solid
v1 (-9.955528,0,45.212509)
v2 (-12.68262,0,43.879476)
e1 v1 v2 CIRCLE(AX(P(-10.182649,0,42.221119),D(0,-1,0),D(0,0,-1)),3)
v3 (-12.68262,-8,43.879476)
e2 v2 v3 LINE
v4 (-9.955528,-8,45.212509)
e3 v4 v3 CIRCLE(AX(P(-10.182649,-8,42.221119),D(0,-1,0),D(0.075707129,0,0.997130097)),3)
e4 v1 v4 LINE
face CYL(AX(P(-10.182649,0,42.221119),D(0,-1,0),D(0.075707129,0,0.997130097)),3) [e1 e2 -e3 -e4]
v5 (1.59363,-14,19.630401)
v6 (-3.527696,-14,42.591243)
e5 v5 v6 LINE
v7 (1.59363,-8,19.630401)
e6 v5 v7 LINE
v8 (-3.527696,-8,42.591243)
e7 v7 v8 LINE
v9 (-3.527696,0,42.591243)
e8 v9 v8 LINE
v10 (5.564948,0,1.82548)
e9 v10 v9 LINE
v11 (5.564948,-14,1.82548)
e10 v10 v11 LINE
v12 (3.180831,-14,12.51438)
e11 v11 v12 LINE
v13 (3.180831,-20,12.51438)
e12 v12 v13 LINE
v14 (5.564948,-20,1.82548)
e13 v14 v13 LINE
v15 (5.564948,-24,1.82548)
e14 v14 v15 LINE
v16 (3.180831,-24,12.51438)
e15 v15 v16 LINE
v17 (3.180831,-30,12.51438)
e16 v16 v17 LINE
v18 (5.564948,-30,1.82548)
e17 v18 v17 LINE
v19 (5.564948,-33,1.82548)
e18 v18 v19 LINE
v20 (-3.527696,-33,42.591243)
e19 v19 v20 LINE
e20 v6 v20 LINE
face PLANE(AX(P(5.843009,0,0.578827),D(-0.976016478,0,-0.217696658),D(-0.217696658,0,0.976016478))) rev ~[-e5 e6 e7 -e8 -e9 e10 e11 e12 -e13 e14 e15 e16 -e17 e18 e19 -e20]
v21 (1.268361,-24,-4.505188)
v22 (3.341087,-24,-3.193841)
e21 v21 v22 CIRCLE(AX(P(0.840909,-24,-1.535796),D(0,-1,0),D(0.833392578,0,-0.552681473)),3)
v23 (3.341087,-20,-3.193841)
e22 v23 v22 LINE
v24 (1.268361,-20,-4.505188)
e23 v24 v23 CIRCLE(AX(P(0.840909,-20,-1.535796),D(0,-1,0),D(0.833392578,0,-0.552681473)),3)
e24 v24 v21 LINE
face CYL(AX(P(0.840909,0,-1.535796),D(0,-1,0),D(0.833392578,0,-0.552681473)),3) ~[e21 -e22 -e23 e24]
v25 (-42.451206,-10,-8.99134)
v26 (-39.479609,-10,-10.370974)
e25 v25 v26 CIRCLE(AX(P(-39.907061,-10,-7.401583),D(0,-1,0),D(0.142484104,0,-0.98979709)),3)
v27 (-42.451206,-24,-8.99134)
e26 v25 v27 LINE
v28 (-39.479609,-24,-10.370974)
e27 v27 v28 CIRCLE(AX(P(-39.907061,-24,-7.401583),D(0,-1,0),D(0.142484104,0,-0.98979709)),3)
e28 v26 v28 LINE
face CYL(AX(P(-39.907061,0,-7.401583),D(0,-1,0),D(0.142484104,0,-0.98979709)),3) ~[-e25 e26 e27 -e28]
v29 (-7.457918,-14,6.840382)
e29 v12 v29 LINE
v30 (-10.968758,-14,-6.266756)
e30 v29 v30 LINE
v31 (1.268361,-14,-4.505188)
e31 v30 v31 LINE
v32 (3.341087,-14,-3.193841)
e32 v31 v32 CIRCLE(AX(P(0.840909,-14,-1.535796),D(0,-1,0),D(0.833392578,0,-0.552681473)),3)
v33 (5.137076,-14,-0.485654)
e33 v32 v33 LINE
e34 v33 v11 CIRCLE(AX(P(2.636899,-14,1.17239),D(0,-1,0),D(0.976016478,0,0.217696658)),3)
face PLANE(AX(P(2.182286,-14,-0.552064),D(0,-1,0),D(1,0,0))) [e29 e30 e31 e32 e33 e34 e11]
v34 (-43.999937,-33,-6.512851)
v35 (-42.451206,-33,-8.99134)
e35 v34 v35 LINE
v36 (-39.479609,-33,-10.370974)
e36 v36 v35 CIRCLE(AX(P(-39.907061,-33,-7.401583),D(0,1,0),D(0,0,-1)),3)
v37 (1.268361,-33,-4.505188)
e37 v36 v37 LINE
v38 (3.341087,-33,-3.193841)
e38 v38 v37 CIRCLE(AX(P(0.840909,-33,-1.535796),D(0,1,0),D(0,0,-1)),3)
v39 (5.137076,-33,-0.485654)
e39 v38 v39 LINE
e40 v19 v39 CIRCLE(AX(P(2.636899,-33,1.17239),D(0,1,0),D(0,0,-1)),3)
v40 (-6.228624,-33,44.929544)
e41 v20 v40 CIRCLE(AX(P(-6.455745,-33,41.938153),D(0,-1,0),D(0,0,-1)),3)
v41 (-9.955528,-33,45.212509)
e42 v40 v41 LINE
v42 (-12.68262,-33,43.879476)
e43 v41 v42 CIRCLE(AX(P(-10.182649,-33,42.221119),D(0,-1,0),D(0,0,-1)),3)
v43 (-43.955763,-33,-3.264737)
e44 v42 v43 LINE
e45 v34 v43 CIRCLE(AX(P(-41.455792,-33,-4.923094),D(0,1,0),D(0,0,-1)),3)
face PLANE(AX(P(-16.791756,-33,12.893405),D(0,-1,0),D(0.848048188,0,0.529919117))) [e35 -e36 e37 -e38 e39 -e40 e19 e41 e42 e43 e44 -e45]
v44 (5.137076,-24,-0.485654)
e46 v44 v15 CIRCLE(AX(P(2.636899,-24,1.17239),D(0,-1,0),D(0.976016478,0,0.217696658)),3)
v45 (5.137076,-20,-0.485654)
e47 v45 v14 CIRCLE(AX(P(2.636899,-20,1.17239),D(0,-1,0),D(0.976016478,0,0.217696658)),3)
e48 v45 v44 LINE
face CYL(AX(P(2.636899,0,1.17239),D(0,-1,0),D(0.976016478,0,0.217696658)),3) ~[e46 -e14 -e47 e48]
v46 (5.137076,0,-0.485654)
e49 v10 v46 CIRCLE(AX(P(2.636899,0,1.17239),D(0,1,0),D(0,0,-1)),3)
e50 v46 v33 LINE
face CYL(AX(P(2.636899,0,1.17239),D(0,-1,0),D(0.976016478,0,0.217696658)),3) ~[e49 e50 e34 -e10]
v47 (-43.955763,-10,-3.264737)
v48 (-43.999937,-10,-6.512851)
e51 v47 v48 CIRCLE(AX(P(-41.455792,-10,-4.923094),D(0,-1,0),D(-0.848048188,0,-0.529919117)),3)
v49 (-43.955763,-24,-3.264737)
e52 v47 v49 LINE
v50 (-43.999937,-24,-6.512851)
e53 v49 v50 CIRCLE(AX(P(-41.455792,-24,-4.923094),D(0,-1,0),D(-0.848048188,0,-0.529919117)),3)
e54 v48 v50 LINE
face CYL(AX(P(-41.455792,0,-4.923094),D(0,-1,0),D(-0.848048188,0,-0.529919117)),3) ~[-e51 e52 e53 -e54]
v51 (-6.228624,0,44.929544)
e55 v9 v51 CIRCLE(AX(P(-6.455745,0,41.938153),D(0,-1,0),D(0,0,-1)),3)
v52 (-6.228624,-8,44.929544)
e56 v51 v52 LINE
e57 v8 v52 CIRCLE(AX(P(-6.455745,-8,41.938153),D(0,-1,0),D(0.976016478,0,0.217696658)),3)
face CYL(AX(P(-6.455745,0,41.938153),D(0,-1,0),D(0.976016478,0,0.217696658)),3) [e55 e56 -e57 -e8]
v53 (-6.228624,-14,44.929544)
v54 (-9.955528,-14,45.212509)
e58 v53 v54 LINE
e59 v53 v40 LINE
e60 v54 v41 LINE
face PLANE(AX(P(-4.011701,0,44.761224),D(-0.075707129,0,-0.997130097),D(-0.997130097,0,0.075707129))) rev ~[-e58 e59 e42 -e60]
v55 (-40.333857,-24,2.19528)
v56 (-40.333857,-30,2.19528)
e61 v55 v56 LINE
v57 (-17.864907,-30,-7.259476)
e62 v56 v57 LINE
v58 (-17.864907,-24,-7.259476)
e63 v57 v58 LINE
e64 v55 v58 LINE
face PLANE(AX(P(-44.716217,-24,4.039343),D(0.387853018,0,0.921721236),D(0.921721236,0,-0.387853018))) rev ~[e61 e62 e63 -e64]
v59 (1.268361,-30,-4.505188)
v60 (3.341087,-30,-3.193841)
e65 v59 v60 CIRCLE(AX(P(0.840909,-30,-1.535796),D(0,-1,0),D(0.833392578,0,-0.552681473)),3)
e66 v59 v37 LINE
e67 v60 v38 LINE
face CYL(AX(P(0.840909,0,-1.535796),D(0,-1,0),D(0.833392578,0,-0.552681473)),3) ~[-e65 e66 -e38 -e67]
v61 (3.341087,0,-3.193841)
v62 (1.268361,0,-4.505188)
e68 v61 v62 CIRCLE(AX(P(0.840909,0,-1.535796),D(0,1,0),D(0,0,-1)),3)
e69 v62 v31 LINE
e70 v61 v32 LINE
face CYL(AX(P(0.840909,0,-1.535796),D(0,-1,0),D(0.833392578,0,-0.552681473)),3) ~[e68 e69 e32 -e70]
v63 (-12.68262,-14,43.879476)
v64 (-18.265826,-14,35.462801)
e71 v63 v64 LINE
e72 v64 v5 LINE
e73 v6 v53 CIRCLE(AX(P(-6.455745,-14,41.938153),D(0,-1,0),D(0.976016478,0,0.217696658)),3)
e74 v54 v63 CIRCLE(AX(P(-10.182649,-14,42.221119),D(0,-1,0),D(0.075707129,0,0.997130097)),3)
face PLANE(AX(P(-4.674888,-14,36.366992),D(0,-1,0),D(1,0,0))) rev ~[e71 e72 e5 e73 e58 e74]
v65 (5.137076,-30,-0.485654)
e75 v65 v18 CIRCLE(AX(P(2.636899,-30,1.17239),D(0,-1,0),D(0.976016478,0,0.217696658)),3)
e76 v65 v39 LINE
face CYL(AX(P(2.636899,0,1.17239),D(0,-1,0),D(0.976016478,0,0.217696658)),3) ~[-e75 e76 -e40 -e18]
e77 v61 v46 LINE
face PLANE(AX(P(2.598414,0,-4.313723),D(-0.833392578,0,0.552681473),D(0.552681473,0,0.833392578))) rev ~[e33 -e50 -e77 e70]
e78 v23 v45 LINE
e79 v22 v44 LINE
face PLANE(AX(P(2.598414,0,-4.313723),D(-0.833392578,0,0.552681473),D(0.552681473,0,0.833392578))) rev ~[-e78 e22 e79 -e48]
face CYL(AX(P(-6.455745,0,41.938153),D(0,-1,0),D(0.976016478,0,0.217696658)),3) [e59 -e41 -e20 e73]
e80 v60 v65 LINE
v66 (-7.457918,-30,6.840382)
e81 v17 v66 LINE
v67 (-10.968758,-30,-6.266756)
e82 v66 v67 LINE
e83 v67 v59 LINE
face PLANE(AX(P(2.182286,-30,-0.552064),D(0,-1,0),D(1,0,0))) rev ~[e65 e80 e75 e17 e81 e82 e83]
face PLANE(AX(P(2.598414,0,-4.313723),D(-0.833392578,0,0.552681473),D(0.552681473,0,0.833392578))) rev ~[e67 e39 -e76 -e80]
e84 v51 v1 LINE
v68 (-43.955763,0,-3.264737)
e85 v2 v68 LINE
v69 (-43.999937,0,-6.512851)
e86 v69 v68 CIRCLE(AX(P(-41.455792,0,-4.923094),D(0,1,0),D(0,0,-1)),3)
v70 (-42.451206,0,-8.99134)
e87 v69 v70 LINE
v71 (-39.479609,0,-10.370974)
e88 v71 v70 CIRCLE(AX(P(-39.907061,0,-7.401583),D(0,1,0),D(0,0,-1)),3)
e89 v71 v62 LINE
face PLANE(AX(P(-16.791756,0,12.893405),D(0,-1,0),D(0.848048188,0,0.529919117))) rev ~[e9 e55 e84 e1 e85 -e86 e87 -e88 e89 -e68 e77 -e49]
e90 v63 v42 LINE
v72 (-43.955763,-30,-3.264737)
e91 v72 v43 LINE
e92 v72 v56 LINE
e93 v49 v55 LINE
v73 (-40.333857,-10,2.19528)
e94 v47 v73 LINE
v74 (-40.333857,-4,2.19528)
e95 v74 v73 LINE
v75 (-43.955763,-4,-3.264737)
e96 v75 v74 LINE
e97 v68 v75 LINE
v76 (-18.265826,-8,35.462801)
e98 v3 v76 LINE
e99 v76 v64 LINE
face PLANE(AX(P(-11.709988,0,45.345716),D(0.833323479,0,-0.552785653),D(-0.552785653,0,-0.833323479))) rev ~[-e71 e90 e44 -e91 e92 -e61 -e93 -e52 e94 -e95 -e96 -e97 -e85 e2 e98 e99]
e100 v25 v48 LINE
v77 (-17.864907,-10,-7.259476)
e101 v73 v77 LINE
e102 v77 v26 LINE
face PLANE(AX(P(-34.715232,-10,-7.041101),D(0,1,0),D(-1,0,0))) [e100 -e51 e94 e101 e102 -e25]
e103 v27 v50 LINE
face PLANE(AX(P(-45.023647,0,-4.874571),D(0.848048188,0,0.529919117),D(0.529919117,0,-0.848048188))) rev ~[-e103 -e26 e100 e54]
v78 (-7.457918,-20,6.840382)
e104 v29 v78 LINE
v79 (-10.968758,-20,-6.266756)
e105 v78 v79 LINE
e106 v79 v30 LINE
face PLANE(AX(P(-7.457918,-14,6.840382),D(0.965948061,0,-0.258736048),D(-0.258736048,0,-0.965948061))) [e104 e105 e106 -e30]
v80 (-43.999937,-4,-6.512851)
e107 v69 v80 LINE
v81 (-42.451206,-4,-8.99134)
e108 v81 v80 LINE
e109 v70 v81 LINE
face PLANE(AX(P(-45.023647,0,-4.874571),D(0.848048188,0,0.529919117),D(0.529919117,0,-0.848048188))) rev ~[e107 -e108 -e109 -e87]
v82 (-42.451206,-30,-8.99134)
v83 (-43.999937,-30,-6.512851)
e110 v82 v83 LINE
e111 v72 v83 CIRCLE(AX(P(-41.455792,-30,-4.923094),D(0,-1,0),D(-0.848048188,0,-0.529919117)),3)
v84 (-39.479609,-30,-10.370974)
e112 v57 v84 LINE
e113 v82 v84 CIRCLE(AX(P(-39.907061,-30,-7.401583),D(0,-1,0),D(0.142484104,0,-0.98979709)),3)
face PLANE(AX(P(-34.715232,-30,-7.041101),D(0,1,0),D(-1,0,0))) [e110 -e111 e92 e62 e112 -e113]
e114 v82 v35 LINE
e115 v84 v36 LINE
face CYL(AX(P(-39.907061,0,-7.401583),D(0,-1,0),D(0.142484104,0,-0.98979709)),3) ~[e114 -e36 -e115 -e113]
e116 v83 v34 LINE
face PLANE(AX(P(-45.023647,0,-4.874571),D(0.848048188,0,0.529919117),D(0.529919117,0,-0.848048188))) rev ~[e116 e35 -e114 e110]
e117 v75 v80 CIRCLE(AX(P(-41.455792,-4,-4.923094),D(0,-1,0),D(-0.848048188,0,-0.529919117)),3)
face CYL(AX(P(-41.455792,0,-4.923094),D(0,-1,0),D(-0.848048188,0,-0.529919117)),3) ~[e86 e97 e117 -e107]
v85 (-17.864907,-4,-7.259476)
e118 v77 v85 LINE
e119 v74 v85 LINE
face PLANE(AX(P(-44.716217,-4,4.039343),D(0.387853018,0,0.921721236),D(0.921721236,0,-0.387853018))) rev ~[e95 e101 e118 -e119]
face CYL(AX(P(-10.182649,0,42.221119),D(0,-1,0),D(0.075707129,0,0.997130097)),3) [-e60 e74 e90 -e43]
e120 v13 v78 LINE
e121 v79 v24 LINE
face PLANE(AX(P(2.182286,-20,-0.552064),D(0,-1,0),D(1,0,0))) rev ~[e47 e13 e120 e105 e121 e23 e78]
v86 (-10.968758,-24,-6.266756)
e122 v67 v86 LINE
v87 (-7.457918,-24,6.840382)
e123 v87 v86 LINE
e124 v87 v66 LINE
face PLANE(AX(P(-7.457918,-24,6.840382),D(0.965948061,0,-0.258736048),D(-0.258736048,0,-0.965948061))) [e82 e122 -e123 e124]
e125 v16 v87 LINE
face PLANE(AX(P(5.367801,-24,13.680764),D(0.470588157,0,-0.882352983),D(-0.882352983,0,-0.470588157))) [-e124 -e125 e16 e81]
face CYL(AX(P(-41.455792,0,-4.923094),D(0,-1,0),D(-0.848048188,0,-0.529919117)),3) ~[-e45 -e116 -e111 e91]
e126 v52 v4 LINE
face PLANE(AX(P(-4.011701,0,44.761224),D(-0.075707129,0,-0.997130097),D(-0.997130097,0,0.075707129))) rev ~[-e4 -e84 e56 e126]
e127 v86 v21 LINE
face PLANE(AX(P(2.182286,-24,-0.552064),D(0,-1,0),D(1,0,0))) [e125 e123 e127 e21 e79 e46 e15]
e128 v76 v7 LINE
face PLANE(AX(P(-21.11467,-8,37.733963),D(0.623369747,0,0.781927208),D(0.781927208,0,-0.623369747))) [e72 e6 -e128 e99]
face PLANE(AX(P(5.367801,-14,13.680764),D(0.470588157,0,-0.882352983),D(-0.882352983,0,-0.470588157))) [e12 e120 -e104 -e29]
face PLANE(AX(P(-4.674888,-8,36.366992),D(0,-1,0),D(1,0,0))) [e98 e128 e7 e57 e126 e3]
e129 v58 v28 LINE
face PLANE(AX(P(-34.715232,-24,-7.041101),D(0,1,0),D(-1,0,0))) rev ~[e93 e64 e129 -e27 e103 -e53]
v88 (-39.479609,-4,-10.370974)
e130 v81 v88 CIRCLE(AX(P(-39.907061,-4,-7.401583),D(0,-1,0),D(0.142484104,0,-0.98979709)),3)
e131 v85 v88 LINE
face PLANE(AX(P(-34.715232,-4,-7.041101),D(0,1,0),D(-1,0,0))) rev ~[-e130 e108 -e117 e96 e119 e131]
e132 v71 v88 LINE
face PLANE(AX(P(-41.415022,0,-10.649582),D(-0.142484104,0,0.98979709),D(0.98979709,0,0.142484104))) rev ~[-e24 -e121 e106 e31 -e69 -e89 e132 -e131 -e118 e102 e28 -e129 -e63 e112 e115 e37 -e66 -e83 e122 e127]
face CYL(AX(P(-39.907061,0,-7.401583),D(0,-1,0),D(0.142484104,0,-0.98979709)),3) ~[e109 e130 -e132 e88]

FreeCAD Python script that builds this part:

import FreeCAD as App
import Part
import Sketcher

V = App.Vector
Q = App.Units.Quantity


def edges_at(feature, points):
    """Names of the edges that pass closest to the given points."""
    edges = feature.Shape.Edges
    near = lambda p: min(range(len(edges)), key=lambda i: edges[i].distToShape(Part.Vertex(*p))[0])
    return sorted({f"Edge{near(p) + 1}" for p in points})

doc = App.newDocument("Part")
params = doc.addObject("Spreadsheet::Sheet", "Params")
for row, (alias, value) in enumerate([
    ("pad1_length", "6 mm"),
    ("pad2_length", "6 mm"),
    ("pad3_length", "6 mm"),
    ("pad4_length", "6 mm"),
    ("pad5_length", "6 mm"),
    ("pad6_length", "33 mm"),
    ("fillet_radius", "3 mm"),
    ("fillet2_radius", "3 mm"),
], start=1):
    params.set(f"A{row}", alias)
    params.set(f"B{row}", "=" + value)
    params.setAlias(f"B{row}", alias)

body = doc.addObject("PartDesign::Body", "Body")

sketch1 = doc.addObject("Sketcher::SketchObject", "Sketch")
body.addObject(sketch1)
sketch1.AttachmentSupport = (doc.XZ_Plane, [""])
sketch1.MapMode = "FlatFace"
sketch1.AttachmentOffset = App.Placement(V(0, 0, 8), App.Rotation())
sketch1.addGeometry([
    Part.LineSegment(V(-15, 49, 0), V(-21, 38, 0)),
    Part.LineSegment(V(-21, 38, 0), V(4, 17, 0)),
    Part.LineSegment(V(4, 17, 0), V(4, 51, 0)),
    Part.LineSegment(V(4, 51, 0), V(-15, 49, 0)),
], False)
sketch1.addConstraint([
    Sketcher.Constraint("Coincident", 0, 2, 1, 1),
    Sketcher.Constraint("Coincident", 1, 2, 2, 1),
    Sketcher.Constraint("Coincident", 2, 2, 3, 1),
    Sketcher.Constraint("Coincident", 3, 2, 0, 1),
    Sketcher.Constraint("Vertical", 2),
    Sketcher.Constraint("Distance", 1, 32.626601),
    Sketcher.Constraint("DistanceY", 2, 1, 2, 2, 33.590309),
    Sketcher.Constraint("DistanceX", 0, 2, -1, 1, 21.11467),
    Sketcher.Constraint("DistanceY", 0, 2, 3, 2, 11.692829),
    Sketcher.Constraint("DistanceX", 3, 2, 2, 2, 18.991992),
    Sketcher.Constraint("Distance", 0, 13.387602),
    Sketcher.Constraint("DistanceY", -1, 1, 0, 2, 37.733963),
])
pad1 = doc.addObject("PartDesign::Pad", "Pad")
body.addObject(pad1)
pad1.Profile = sketch1
pad1.setExpression("Length", "Params.pad1_length")
body2 = doc.addObject("PartDesign::Body", "Body001")

sketch2 = doc.addObject("Sketcher::SketchObject", "Sketch001")
body2.addObject(sketch2)
sketch2.AttachmentSupport = (doc.getObject("XZ_Plane001"), [""])
sketch2.MapMode = "FlatFace"
sketch2.AttachmentOffset = App.Placement(V(0, 0, 4), App.Rotation())
sketch2.addGeometry([
    Part.LineSegment(V(-16, -8, 0), V(-45, 4, 0)),
    Part.LineSegment(V(-45, 4, 0), V(-47, -17, 0)),
    Part.LineSegment(V(-47, -17, 0), V(-16, -8, 0)),
], False)
sketch2.addConstraint([
    Sketcher.Constraint("Coincident", 0, 2, 1, 1),
    Sketcher.Constraint("Coincident", 1, 2, 2, 1),
    Sketcher.Constraint("Coincident", 2, 2, 0, 1),
    Sketcher.Constraint("DistanceX", 2, 2, -1, 1, 16.086502),
    Sketcher.Constraint("Distance", 1, 20.902961),
    Sketcher.Constraint("DistanceY", 1, 2, -1, 1, 16.724289),
    Sketcher.Constraint("DistanceY", 1, 2, 0, 2, 20.763632),
    Sketcher.Constraint("DistanceX", 1, 2, 2, 2, 31.03915),
    Sketcher.Constraint("Distance", 0, 31.061143),
])
pad2 = doc.addObject("PartDesign::Pad", "Pad001")
body2.addObject(pad2)
pad2.Profile = sketch2
pad2.setExpression("Length", "Params.pad2_length")
body3 = doc.addObject("PartDesign::Body", "Body002")

sketch3 = doc.addObject("Sketcher::SketchObject", "Sketch002")
body3.addObject(sketch3)
sketch3.AttachmentSupport = (doc.getObject("XZ_Plane002"), [""])
sketch3.MapMode = "FlatFace"
sketch3.AttachmentOffset = App.Placement(V(0, 0, 24), App.Rotation())
sketch3.addGeometry([
    Part.LineSegment(V(-16, -8, 0), V(-45, 4, 0)),
    Part.LineSegment(V(-45, 4, 0), V(-47, -17, 0)),
    Part.LineSegment(V(-47, -17, 0), V(-16, -8, 0)),
], False)
sketch3.addConstraint([
    Sketcher.Constraint("Coincident", 0, 2, 1, 1),
    Sketcher.Constraint("Coincident", 1, 2, 2, 1),
    Sketcher.Constraint("Coincident", 2, 2, 0, 1),
    Sketcher.Constraint("DistanceX", 2, 2, -1, 1, 16.086502),
    Sketcher.Constraint("Distance", 1, 20.902961),
    Sketcher.Constraint("DistanceY", 1, 2, -1, 1, 16.724289),
    Sketcher.Constraint("DistanceY", 1, 2, 0, 2, 20.763632),
    Sketcher.Constraint("DistanceX", 1, 2, 2, 2, 31.03915),
    Sketcher.Constraint("Distance", 0, 31.061143),
])
pad3 = doc.addObject("PartDesign::Pad", "Pad002")
body3.addObject(pad3)
pad3.Profile = sketch3
pad3.setExpression("Length", "Params.pad3_length")
body4 = doc.addObject("PartDesign::Body", "Body003")

sketch4 = doc.addObject("Sketcher::SketchObject", "Sketch003")
body4.addObject(sketch4)
sketch4.AttachmentSupport = (doc.getObject("XZ_Plane003"), [""])
sketch4.MapMode = "FlatFace"
sketch4.AttachmentOffset = App.Placement(V(0, 0, 14), App.Rotation())
sketch4.addGeometry([
    Part.LineSegment(V(5, 14, 0), V(-7, 7, 0)),
    Part.LineSegment(V(-7, 7, 0), V(-12, -9, 0)),
    Part.LineSegment(V(-12, -9, 0), V(13, -12, 0)),
    Part.LineSegment(V(13, -12, 0), V(11, 12, 0)),
    Part.LineSegment(V(11, 12, 0), V(5, 14, 0)),
], False)
sketch4.addConstraint([
    Sketcher.Constraint("Coincident", 0, 2, 1, 1),
    Sketcher.Constraint("Coincident", 1, 2, 2, 1),
    Sketcher.Constraint("Coincident", 2, 2, 3, 1),
    Sketcher.Constraint("Coincident", 3, 2, 4, 1),
    Sketcher.Constraint("Coincident", 4, 2, 0, 1),
    Sketcher.Constraint("Distance", 2, 25.108199),
    Sketcher.Constraint("DistanceX", -1, 1, 4, 2, 5.367801),
    Sketcher.Constraint("DistanceX", 1, 2, 2, 2, 24.986398),
    Sketcher.Constraint("DistanceY", 2, 2, 3, 2, 23.276301),
    Sketcher.Constraint("Distance", 1, 16.52355),
    Sketcher.Constraint("Distance", 3, 23.34619),
    Sketcher.Constraint("DistanceX", 0, 2, -1, 1, 7.457918),
    Sketcher.Constraint("DistanceY", 1, 2, -1, 1, 9.120509),
    Sketcher.Constraint("DistanceY", 1, 2, 0, 2, 15.960891),
    Sketcher.Constraint("DistanceY", 3, 2, 4, 2, 1.995111),
])
pad4 = doc.addObject("PartDesign::Pad", "Pad003")
body4.addObject(pad4)
pad4.Profile = sketch4
pad4.setExpression("Length", "Params.pad4_length")
body5 = doc.addObject("PartDesign::Body", "Body004")

sketch5 = doc.addObject("Sketcher::SketchObject", "Sketch004")
body5.addObject(sketch5)
sketch5.AttachmentSupport = (doc.getObject("XZ_Plane004"), [""])
sketch5.MapMode = "FlatFace"
sketch5.AttachmentOffset = App.Placement(V(0, 0, 24), App.Rotation())
sketch5.addGeometry([
    Part.LineSegment(V(5, 14, 0), V(-7, 7, 0)),
    Part.LineSegment(V(-7, 7, 0), V(-12, -9, 0)),
    Part.LineSegment(V(-12, -9, 0), V(13, -12, 0)),
    Part.LineSegment(V(13, -12, 0), V(11, 12, 0)),
    Part.LineSegment(V(11, 12, 0), V(5, 14, 0)),
], False)
sketch5.addConstraint([
    Sketcher.Constraint("Coincident", 0, 2, 1, 1),
    Sketcher.Constraint("Coincident", 1, 2, 2, 1),
    Sketcher.Constraint("Coincident", 2, 2, 3, 1),
    Sketcher.Constraint("Coincident", 3, 2, 4, 1),
    Sketcher.Constraint("Coincident", 4, 2, 0, 1),
    Sketcher.Constraint("Distance", 2, 25.108199),
    Sketcher.Constraint("DistanceX", -1, 1, 4, 2, 5.367801),
    Sketcher.Constraint("DistanceX", 1, 2, 2, 2, 24.986398),
    Sketcher.Constraint("DistanceY", 2, 2, 3, 2, 23.276301),
    Sketcher.Constraint("Distance", 1, 16.52355),
    Sketcher.Constraint("Distance", 3, 23.34619),
    Sketcher.Constraint("DistanceX", 0, 2, -1, 1, 7.457918),
    Sketcher.Constraint("DistanceY", 1, 2, -1, 1, 9.120509),
    Sketcher.Constraint("DistanceY", 1, 2, 0, 2, 15.960891),
    Sketcher.Constraint("DistanceY", 3, 2, 4, 2, 1.995111),
])
pad5 = doc.addObject("PartDesign::Pad", "Pad004")
body5.addObject(pad5)
pad5.Profile = sketch5
pad5.setExpression("Length", "Params.pad5_length")
body6 = doc.addObject("PartDesign::Body", "Body005")

sketch6 = doc.addObject("Sketcher::SketchObject", "Sketch005")
body6.addObject(sketch6)
sketch6.AttachmentSupport = (doc.getObject("XZ_Plane005"), [""])
sketch6.MapMode = "FlatFace"
sketch6.addGeometry([
    Part.LineSegment(V(-45, -5, 0), V(-41, -11, 0)),
    Part.LineSegment(V(-41, -11, 0), V(3, -4, 0)),
    Part.LineSegment(V(3, -4, 0), V(6, 1, 0)),
    Part.LineSegment(V(6, 1, 0), V(-4, 45, 0)),
    Part.LineSegment(V(-4, 45, 0), V(-12, 45, 0)),
    Part.LineSegment(V(-12, 45, 0), V(-45, -5, 0)),
], False)
sketch6.addConstraint([
    Sketcher.Constraint("Coincident", 0, 2, 1, 1),
    Sketcher.Constraint("Coincident", 1, 2, 2, 1),
    Sketcher.Constraint("Coincident", 2, 2, 3, 1),
    Sketcher.Constraint("Coincident", 3, 2, 4, 1),
    Sketcher.Constraint("Coincident", 4, 2, 5, 1),
    Sketcher.Constraint("Coincident", 5, 2, 0, 1),
    Sketcher.Constraint("Angle", 0, Q("-58.00001 deg")),
    Sketcher.Constraint("DistanceX", 3, 2, -1, 1, 4.011701),
    Sketcher.Constraint("DistanceX", 4, 2, 1, 2, 14.308402),
    Sketcher.Constraint("DistanceY", 0, 2, 4, 2, 55.995298),
    Sketcher.Constraint("DistanceY", 5, 2, 2, 2, 5.453398),
    Sketcher.Constraint("Distance", 1, 44.467129),
    Sketcher.Constraint("DistanceX", 0, 2, -1, 1, 41.415022),
    Sketcher.Constraint("DistanceY", 0, 2, -1, 1, 10.649582),
    Sketcher.Constraint("DistanceX", -1, 1, 2, 2, 5.843009),
    Sketcher.Constraint("DistanceY", 5, 2, -1, 1, 4.874571),
    Sketcher.Constraint("DistanceY", 0, 2, 1, 2, 6.335859),
    Sketcher.Constraint("Distance", 3, 45.268085),
])
pad6 = doc.addObject("PartDesign::Pad", "Pad005")
body6.addObject(pad6)
pad6.Profile = sketch6
pad6.setExpression("Length", "Params.pad6_length")
doc.recompute()

fillet = doc.addObject("PartDesign::Fillet", "Fillet")
body6.addObject(fillet)
fillet.Base = (pad6, edges_at(pad6, [(-4.012, -16.5, 44.761), (-11.71, -16.5, 45.346)]))
fillet.setExpression("Radius", "Params.fillet_radius")
doc.recompute()

fillet2 = doc.addObject("PartDesign::Fillet", "Fillet001")
body6.addObject(fillet2)
fillet2.Base = (fillet, edges_at(fillet, [
    (5.843, -16.5, 0.579),
    (2.598, -16.5, -4.314),
    (-41.415, -16.5, -10.65),
    (-45.024, -16.5, -4.875),
]))
fillet2.setExpression("Radius", "Params.fillet2_radius")
doc.recompute()

boolean = doc.addObject("PartDesign::Boolean", "Boolean")
body6.addObject(boolean)
boolean.Type = "Cut"
boolean.addObjects([body5])
doc.recompute()

boolean2 = doc.addObject("PartDesign::Boolean", "Boolean001")
body6.addObject(boolean2)
boolean2.Type = "Cut"
boolean2.addObjects([body4])
doc.recompute()

boolean3 = doc.addObject("PartDesign::Boolean", "Boolean002")
body6.addObject(boolean3)
boolean3.Type = "Cut"
boolean3.addObjects([body3])
doc.recompute()

boolean4 = doc.addObject("PartDesign::Boolean", "Boolean003")
body6.addObject(boolean4)
boolean4.Type = "Cut"
boolean4.addObjects([body2])
doc.recompute()

boolean5 = doc.addObject("PartDesign::Boolean", "Boolean004")
body6.addObject(boolean5)
boolean5.Type = "Cut"
boolean5.addObjects([body])

doc.recompute()
